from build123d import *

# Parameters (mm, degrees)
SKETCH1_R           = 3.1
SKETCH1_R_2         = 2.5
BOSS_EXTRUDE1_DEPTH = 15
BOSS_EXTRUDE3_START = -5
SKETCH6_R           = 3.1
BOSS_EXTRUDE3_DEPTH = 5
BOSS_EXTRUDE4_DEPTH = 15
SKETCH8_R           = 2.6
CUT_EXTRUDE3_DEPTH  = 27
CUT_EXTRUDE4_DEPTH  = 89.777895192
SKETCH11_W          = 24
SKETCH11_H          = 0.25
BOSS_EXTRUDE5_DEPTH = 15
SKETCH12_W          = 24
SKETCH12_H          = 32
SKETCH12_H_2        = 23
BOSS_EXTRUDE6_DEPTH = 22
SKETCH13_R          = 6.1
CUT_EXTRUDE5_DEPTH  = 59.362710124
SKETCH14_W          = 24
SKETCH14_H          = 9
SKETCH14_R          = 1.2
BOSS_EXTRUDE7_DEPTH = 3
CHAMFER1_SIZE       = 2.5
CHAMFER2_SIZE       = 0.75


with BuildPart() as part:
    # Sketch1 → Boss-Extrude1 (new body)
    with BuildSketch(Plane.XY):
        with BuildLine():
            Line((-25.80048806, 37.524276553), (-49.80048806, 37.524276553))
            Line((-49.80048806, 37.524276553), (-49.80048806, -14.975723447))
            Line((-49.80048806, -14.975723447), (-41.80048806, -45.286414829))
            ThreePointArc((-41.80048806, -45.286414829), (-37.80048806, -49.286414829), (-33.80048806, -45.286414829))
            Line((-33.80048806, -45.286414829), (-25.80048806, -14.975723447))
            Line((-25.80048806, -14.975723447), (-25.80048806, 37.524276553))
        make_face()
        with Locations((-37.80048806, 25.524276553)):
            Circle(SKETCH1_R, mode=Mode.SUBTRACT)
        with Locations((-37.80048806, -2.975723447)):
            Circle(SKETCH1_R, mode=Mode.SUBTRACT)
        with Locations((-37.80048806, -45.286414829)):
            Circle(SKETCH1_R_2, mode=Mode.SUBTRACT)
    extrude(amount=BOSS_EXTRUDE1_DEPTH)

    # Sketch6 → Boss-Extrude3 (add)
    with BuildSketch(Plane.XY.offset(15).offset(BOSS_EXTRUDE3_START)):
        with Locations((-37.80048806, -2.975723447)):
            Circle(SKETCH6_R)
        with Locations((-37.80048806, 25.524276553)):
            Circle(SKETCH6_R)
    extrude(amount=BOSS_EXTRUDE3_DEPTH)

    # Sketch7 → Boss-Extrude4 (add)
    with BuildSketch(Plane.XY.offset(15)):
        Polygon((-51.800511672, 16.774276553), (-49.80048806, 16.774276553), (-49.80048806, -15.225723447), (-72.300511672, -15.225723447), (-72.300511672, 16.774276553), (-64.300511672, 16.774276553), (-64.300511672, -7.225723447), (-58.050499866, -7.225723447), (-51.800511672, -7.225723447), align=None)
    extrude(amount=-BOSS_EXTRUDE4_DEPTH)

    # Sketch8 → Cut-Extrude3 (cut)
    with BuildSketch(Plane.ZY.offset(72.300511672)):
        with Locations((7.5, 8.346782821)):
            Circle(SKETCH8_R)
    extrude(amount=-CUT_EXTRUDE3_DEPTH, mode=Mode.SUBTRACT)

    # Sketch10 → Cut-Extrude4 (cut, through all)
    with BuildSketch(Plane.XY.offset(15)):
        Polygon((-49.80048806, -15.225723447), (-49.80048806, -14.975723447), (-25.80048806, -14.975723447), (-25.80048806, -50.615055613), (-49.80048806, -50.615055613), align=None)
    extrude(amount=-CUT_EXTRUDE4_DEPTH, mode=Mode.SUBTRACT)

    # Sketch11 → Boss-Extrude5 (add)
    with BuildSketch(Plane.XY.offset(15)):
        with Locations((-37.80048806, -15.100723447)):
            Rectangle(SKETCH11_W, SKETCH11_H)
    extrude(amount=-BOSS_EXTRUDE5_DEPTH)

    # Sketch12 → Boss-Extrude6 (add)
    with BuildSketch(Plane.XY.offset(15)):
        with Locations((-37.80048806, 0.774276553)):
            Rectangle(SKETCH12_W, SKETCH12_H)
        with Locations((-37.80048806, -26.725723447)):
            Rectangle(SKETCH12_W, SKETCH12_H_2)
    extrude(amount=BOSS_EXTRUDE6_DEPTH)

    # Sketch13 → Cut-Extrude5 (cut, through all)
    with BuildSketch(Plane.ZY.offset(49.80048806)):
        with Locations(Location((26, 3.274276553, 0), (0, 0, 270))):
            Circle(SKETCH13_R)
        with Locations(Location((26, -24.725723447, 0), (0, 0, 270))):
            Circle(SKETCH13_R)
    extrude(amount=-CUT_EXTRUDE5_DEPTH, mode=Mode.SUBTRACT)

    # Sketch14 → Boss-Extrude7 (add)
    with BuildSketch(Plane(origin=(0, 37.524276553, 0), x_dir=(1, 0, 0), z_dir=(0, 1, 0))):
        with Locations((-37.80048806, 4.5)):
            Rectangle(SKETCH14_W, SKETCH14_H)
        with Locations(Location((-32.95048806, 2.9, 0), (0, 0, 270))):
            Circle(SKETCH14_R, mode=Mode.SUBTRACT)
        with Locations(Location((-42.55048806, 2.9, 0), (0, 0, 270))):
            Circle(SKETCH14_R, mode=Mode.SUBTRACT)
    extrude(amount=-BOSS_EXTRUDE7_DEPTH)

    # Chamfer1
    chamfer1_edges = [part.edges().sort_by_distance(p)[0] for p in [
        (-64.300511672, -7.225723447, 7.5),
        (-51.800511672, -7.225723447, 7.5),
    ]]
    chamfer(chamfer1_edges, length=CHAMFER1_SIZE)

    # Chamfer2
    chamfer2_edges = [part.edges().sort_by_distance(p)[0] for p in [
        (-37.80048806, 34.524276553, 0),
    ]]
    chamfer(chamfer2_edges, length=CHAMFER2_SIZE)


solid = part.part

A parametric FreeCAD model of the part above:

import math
import FreeCAD as App
import Part
import Sketcher
Q = App.Units.Quantity


def edges_at(feature, points):
    """Names of the edges that pass closest to the given points."""
    edges = feature.Shape.Edges
    near = lambda p: min(range(len(edges)), key=lambda i: edges[i].distToShape(Part.Vertex(*p))[0])
    return sorted({f"Edge{near(p) + 1}" for p in points})

doc = App.newDocument("Part")
body = doc.addObject("PartDesign::Body", "Body")

sketch1 = body.newObject("Sketcher::SketchObject", "Sketch")
sketch1.AttachmentSupport = (doc.getObject("XY_Plane"), [""])
sketch1.MapMode = "FlatFace"
sketch1.addGeometry([
    Part.LineSegment(App.Vector(-25.800488, 37.524277, 0), App.Vector(-49.800488, 37.524277, 0)),
    Part.LineSegment(App.Vector(-49.800488, 37.524277, 0), App.Vector(-49.800488, -14.975723, 0)),
    Part.LineSegment(App.Vector(-49.800488, -14.975723, 0), App.Vector(-41.800488, -45.286415, 0)),
    Part.ArcOfCircle(Part.Circle(App.Vector(-37.800488, -45.286415, 0), App.Vector(0, 0, 1), 4), math.radians(180), math.radians(360)),
    Part.LineSegment(App.Vector(-33.800488, -45.286415, 0), App.Vector(-25.800488, -14.975723, 0)),
    Part.LineSegment(App.Vector(-25.800488, -14.975723, 0), App.Vector(-25.800488, 37.524277, 0)),
    Part.Circle(App.Vector(-37.800488, -45.286415, 0), App.Vector(0, 0, 1), 2.5),
    Part.Circle(App.Vector(-37.800488, -2.975723, 0), App.Vector(0, 0, 1), 3.1),
    Part.Circle(App.Vector(-37.800488, 25.524277, 0), App.Vector(0, 0, 1), 3.1),
], False)
sketch1.addConstraint([
    Sketcher.Constraint("Coincident", 0, 2, 1, 1),
    Sketcher.Constraint("Coincident", 1, 2, 2, 1),
    Sketcher.Constraint("Coincident", 2, 2, 3, 1),
    Sketcher.Constraint("Coincident", 3, 2, 4, 1),
    Sketcher.Constraint("Coincident", 4, 2, 5, 1),
    Sketcher.Constraint("Coincident", 5, 2, 0, 1),
    Sketcher.Constraint("Horizontal", 0),
    Sketcher.Constraint("Vertical", 1),
    Sketcher.Constraint("Vertical", 5),
    Sketcher.Constraint("Coincident", 6, 3, 3, 3),
    Sketcher.Constraint("Equal", 7, 8),
    Sketcher.Constraint("Horizontal", 6, 3, 2, 2),
    Sketcher.Constraint("Horizontal", 2, 2, 3, 2),
    Sketcher.Constraint("Horizontal", 1, 2, 4, 2),
    Sketcher.Constraint("Vertical", 6, 3, 7, 3),
    Sketcher.Constraint("Vertical", 7, 3, 8, 3),
    Sketcher.Constraint("Equal", 2, 4),
    Sketcher.Constraint("Diameter", 6, Q("5 mm")),
    Sketcher.Constraint("Radius", 3, Q("4 mm")),
    Sketcher.Constraint("Diameter", 7, Q("6.2 mm")),
    Sketcher.Constraint("DistanceX", 0, 2, 0, 1, Q("24 mm")),
    Sketcher.Constraint("DistanceY", 1, 2, 1, 1, Q("52.5 mm")),
    Sketcher.Constraint("DistanceY", 8, 3, 0, 2, Q("12 mm")),
    Sketcher.Constraint("DistanceY", 1, 2, 7, 3, Q("12 mm")),
    Sketcher.Constraint("DistanceX", 3, 3, -1, 1, Q("37.800488 mm")),
    Sketcher.Constraint("DistanceY", 3, 3, 7, 3, Q("42.310691 mm")),
    Sketcher.Constraint("DistanceY", 3, 3, -1, 1, Q("45.286415 mm")),
])
pad1 = body.newObject("PartDesign::Pad", "Pad")
pad1.Profile = sketch1
pad1.Length = 15

sketch2 = body.newObject("Sketcher::SketchObject", "Sketch001")
sketch2.AttachmentSupport = (doc.getObject("XY_Plane"), [""])
sketch2.MapMode = "FlatFace"
sketch2.AttachmentOffset = App.Placement(App.Vector(0, 0, 10), App.Rotation())
sketch2.addGeometry([
    Part.Circle(App.Vector(-37.800488, -2.975723, 0), App.Vector(0, 0, 1), 3.1),
    Part.Circle(App.Vector(-37.800488, 25.524277, 0), App.Vector(0, 0, 1), 3.1),
], False)
sketch2.addConstraint([
    Sketcher.Constraint("Equal", 0, 1),
    Sketcher.Constraint("Vertical", 0, 3, 1, 3),
    Sketcher.Constraint("Diameter", 0, Q("6.2 mm")),
    Sketcher.Constraint("DistanceY", 0, 3, 1, 3, Q("28.5 mm")),
    Sketcher.Constraint("DistanceX", 0, 3, -1, 1, Q("37.800488 mm")),
    Sketcher.Constraint("DistanceY", 0, 3, -1, 1, Q("2.975723 mm")),
])
pad2 = body.newObject("PartDesign::Pad", "Pad001")
pad2.Profile = sketch2
pad2.Length = 5

sketch3 = body.newObject("Sketcher::SketchObject", "Sketch002")
sketch3.AttachmentSupport = (doc.getObject("XY_Plane"), [""])
sketch3.MapMode = "FlatFace"
sketch3.AttachmentOffset = App.Placement(App.Vector(0, 0, 15), App.Rotation())
sketch3.addGeometry([
    Part.LineSegment(App.Vector(-49.800488, 16.774277, 0), App.Vector(-51.800512, 16.774277, 0)),
    Part.LineSegment(App.Vector(-51.800512, 16.774277, 0), App.Vector(-51.800512, -7.225723, 0)),
    Part.LineSegment(App.Vector(-51.800512, -7.225723, 0), App.Vector(-64.300512, -7.225723, 0)),
    Part.LineSegment(App.Vector(-64.300512, -7.225723, 0), App.Vector(-64.300512, 16.774277, 0)),
    Part.LineSegment(App.Vector(-64.300512, 16.774277, 0), App.Vector(-72.300512, 16.774277, 0)),
    Part.LineSegment(App.Vector(-72.300512, 16.774277, 0), App.Vector(-72.300512, -15.225723, 0)),
    Part.LineSegment(App.Vector(-72.300512, -15.225723, 0), App.Vector(-49.800488, -15.225723, 0)),
    Part.LineSegment(App.Vector(-49.800488, -15.225723, 0), App.Vector(-49.800488, 16.774277, 0)),
], False)
sketch3.addConstraint([
    Sketcher.Constraint("Coincident", 0, 2, 1, 1),
    Sketcher.Constraint("Coincident", 1, 2, 2, 1),
    Sketcher.Constraint("Coincident", 2, 2, 3, 1),
    Sketcher.Constraint("Coincident", 3, 2, 4, 1),
    Sketcher.Constraint("Coincident", 4, 2, 5, 1),
    Sketcher.Constraint("Coincident", 5, 2, 6, 1),
    Sketcher.Constraint("Coincident", 6, 2, 7, 1),
    Sketcher.Constraint("Coincident", 7, 2, 0, 1),
    Sketcher.Constraint("Horizontal", 0),
    Sketcher.Constraint("Vertical", 1),
    Sketcher.Constraint("Horizontal", 2),
    Sketcher.Constraint("Vertical", 3),
    Sketcher.Constraint("Horizontal", 4),
    Sketcher.Constraint("Vertical", 5),
    Sketcher.Constraint("Horizontal", 6),
    Sketcher.Constraint("Vertical", 7),
    Sketcher.Constraint("Horizontal", 0, 2, 3, 2),
    Sketcher.Constraint("DistanceX", 4, 2, 4, 1, Q("8 mm")),
    Sketcher.Constraint("DistanceY", 1, 2, 1, 1, Q("24 mm")),
    Sketcher.Constraint("DistanceY", 5, 2, 5, 1, Q("32 mm")),
    Sketcher.Constraint("DistanceX", 2, 2, 2, 1, Q("12.5 mm")),
    Sketcher.Constraint("DistanceX", 0, 2, 0, 1, Q("2.000024 mm")),
    Sketcher.Constraint("DistanceX", 0, 2, -1, 1, Q("51.800512 mm")),
    Sketcher.Constraint("DistanceY", -1, 1, 0, 2, Q("16.774277 mm")),
])
pad3 = body.newObject("PartDesign::Pad", "Pad002")
pad3.Profile = sketch3
pad3.Length = 15
pad3.Reversed = True

sketch4 = body.newObject("Sketcher::SketchObject", "Sketch003")
sketch4.AttachmentSupport = (doc.getObject("YZ_Plane"), [""])
sketch4.MapMode = "FlatFace"
sketch4.AttachmentOffset = App.Placement(App.Vector(0, 0, -72.300512), App.Rotation())
sketch4.addGeometry(Part.Circle(App.Vector(8.346783, 7.5, 0), App.Vector(0, 0, 1), 2.6), False)
sketch4.addConstraint([
    Sketcher.Constraint("Diameter", 0, Q("5.2 mm")),
    Sketcher.Constraint("DistanceY", -1, 1, 0, 3, Q("7.5 mm")),
    Sketcher.Constraint("DistanceX", -1, 1, 0, 3, Q("8.346783 mm")),
])
pocket1 = body.newObject("PartDesign::Pocket", "Pocket")
pocket1.Profile = sketch4
pocket1.Length = 27
pocket1.Reversed = True

sketch5 = body.newObject("Sketcher::SketchObject", "Sketch004")
sketch5.AttachmentSupport = (doc.getObject("XY_Plane"), [""])
sketch5.MapMode = "FlatFace"
sketch5.AttachmentOffset = App.Placement(App.Vector(0, 0, 15), App.Rotation())
sketch5.addGeometry([
    Part.LineSegment(App.Vector(-49.800488, -14.975723, 0), App.Vector(-49.800488, -50.615056, 0)),
    Part.LineSegment(App.Vector(-49.800488, -50.615056, 0), App.Vector(-25.800488, -50.615056, 0)),
    Part.LineSegment(App.Vector(-25.800488, -50.615056, 0), App.Vector(-25.800488, -14.975723, 0)),
    Part.LineSegment(App.Vector(-25.800488, -14.975723, 0), App.Vector(-49.800488, -14.975723, 0)),
], False)
sketch5.addConstraint([
    Sketcher.Constraint("Coincident", 0, 2, 1, 1),
    Sketcher.Constraint("Coincident", 1, 2, 2, 1),
    Sketcher.Constraint("Coincident", 2, 2, 3, 1),
    Sketcher.Constraint("Coincident", 3, 2, 0, 1),
    Sketcher.Constraint("Vertical", 0),
    Sketcher.Constraint("Horizontal", 1),
    Sketcher.Constraint("Vertical", 2),
    Sketcher.Constraint("Horizontal", 3),
    Sketcher.Constraint("DistanceX", 1, 1, 1, 2, Q("24 mm")),
    Sketcher.Constraint("DistanceY", 0, 2, 0, 1, Q("35.639332 mm")),
    Sketcher.Constraint("DistanceX", 0, 2, -1, 1, Q("49.800488 mm")),
    Sketcher.Constraint("DistanceY", 0, 2, -1, 1, Q("50.615056 mm")),
])
pocket2 = body.newObject("PartDesign::Pocket", "Pocket001")
pocket2.Profile = sketch5
pocket2.Type = "ThroughAll"

sketch6 = body.newObject("Sketcher::SketchObject", "Sketch005")
sketch6.AttachmentSupport = (doc.getObject("XY_Plane"), [""])
sketch6.MapMode = "FlatFace"
sketch6.AttachmentOffset = App.Placement(App.Vector(0, 0, 15), App.Rotation())
sketch6.addGeometry([
    Part.LineSegment(App.Vector(-49.800488, -14.975723, 0), App.Vector(-49.800488, -15.225723, 0)),
    Part.LineSegment(App.Vector(-49.800488, -15.225723, 0), App.Vector(-25.800488, -15.225723, 0)),
    Part.LineSegment(App.Vector(-25.800488, -15.225723, 0), App.Vector(-25.800488, -14.975723, 0)),
    Part.LineSegment(App.Vector(-25.800488, -14.975723, 0), App.Vector(-49.800488, -14.975723, 0)),
], False)
sketch6.addConstraint([
    Sketcher.Constraint("Coincident", 0, 2, 1, 1),
    Sketcher.Constraint("Coincident", 1, 2, 2, 1),
    Sketcher.Constraint("Coincident", 2, 2, 3, 1),
    Sketcher.Constraint("Coincident", 3, 2, 0, 1),
    Sketcher.Constraint("Vertical", 0),
    Sketcher.Constraint("Horizontal", 1),
    Sketcher.Constraint("Vertical", 2),
    Sketcher.Constraint("Horizontal", 3),
    Sketcher.Constraint("DistanceX", 1, 1, 1, 2, Q("24 mm")),
    Sketcher.Constraint("DistanceY", 0, 2, 0, 1, Q("0.25 mm")),
    Sketcher.Constraint("DistanceX", 0, 2, -1, 1, Q("49.800488 mm")),
    Sketcher.Constraint("DistanceY", 0, 2, -1, 1, Q("15.225723 mm")),
])
pad4 = body.newObject("PartDesign::Pad", "Pad003")
pad4.Profile = sketch6
pad4.Length = 15
pad4.Reversed = True

sketch7 = body.newObject("Sketcher::SketchObject", "Sketch006")
sketch7.AttachmentSupport = (doc.getObject("XY_Plane"), [""])
sketch7.MapMode = "FlatFace"
sketch7.AttachmentOffset = App.Placement(App.Vector(0, 0, 15), App.Rotation())
sketch7.addGeometry([
    Part.LineSegment(App.Vector(-49.800488, 16.774277, 0), App.Vector(-49.800488, -38.225723, 0)),
    Part.LineSegment(App.Vector(-49.800488, -38.225723, 0), App.Vector(-25.800488, -38.225723, 0)),
    Part.LineSegment(App.Vector(-25.800488, -38.225723, 0), App.Vector(-25.800488, 16.774277, 0)),
    Part.LineSegment(App.Vector(-25.800488, 16.774277, 0), App.Vector(-49.800488, 16.774277, 0)),
], False)
sketch7.addConstraint([
    Sketcher.Constraint("Coincident", 0, 2, 1, 1),
    Sketcher.Constraint("Coincident", 1, 2, 2, 1),
    Sketcher.Constraint("Coincident", 2, 2, 3, 1),
    Sketcher.Constraint("Coincident", 3, 2, 0, 1),
    Sketcher.Constraint("Vertical", 0),
    Sketcher.Constraint("Horizontal", 1),
    Sketcher.Constraint("Vertical", 2),
    Sketcher.Constraint("Horizontal", 3),
    Sketcher.Constraint("DistanceX", 1, 1, 1, 2, Q("24 mm")),
    Sketcher.Constraint("DistanceY", 0, 2, 0, 1, Q("55 mm")),
    Sketcher.Constraint("DistanceX", 0, 2, -1, 1, Q("49.800488 mm")),
    Sketcher.Constraint("DistanceY", 0, 2, -1, 1, Q("38.225723 mm")),
])
pad5 = body.newObject("PartDesign::Pad", "Pad004")
pad5.Profile = sketch7
pad5.Length = 22

sketch8 = body.newObject("Sketcher::SketchObject", "Sketch007")
sketch8.AttachmentSupport = (doc.getObject("YZ_Plane"), [""])
sketch8.MapMode = "FlatFace"
sketch8.AttachmentOffset = App.Placement(App.Vector(0, 0, -49.800488), App.Rotation())
sketch8.addGeometry([
    Part.Circle(App.Vector(3.274277, 26, 0), App.Vector(0, 0, 1), 6.1),
    Part.Circle(App.Vector(-24.725723, 26, 0), App.Vector(0, 0, 1), 6.1),
], False)
sketch8.addConstraint([
    Sketcher.Constraint("Equal", 0, 1),
    Sketcher.Constraint("Horizontal", 0, 3, 1, 3),
    Sketcher.Constraint("Diameter", 0, Q("12.2 mm")),
    Sketcher.Constraint("DistanceY", -1, 1, 0, 3, Q("26 mm")),
    Sketcher.Constraint("DistanceX", 1, 3, 0, 3, Q("28 mm")),
    Sketcher.Constraint("DistanceX", -1, 1, 0, 3, Q("3.274277 mm")),
])
pocket3 = body.newObject("PartDesign::Pocket", "Pocket002")
pocket3.Profile = sketch8
pocket3.Type = "ThroughAll"
pocket3.Reversed = True

sketch9 = body.newObject("Sketcher::SketchObject", "Sketch008")
sketch9.AttachmentSupport = (doc.getObject("XZ_Plane"), [""])
sketch9.MapMode = "FlatFace"
sketch9.AttachmentOffset = App.Placement(App.Vector(0, 0, -37.524277), App.Rotation())
sketch9.addGeometry([
    Part.LineSegment(App.Vector(-49.800488, -9, 0), App.Vector(-49.800488, 0, 0)),
    Part.LineSegment(App.Vector(-49.800488, 0, 0), App.Vector(-25.800488, 0, 0)),
    Part.LineSegment(App.Vector(-25.800488, 0, 0), App.Vector(-25.800488, -9, 0)),
    Part.LineSegment(App.Vector(-25.800488, -9, 0), App.Vector(-49.800488, -9, 0)),
    Part.Circle(App.Vector(-42.550488, -2.9, 0), App.Vector(0, 0, 1), 1.2),
    Part.Circle(App.Vector(-32.950488, -2.9, 0), App.Vector(0, 0, 1), 1.2),
], False)
sketch9.addConstraint([
    Sketcher.Constraint("Coincident", 0, 2, 1, 1),
    Sketcher.Constraint("Coincident", 1, 2, 2, 1),
    Sketcher.Constraint("Coincident", 2, 2, 3, 1),
    Sketcher.Constraint("Coincident", 3, 2, 0, 1),
    Sketcher.Constraint("Vertical", 0),
    Sketcher.Constraint("Horizontal", 1),
    Sketcher.Constraint("Vertical", 2),
    Sketcher.Constraint("Horizontal", 3),
    Sketcher.Constraint("Equal", 4, 5),
    Sketcher.Constraint("PointOnObject", 0, 2, -1),
    Sketcher.Constraint("Horizontal", 4, 3, 5, 3),
    Sketcher.Constraint("Diameter", 4, Q("2.4 mm")),
    Sketcher.Constraint("DistanceX", 1, 1, 1, 2, Q("24 mm")),
    Sketcher.Constraint("DistanceY", 0, 1, 0, 2, Q("9 mm")),
    Sketcher.Constraint("DistanceY", 4, 3, -1, 1, Q("2.9 mm")),
    Sketcher.Constraint("DistanceX", 4, 3, 5, 3, Q("9.6 mm")),
    Sketcher.Constraint("DistanceX", 0, 2, 4, 3, Q("7.25 mm")),
    Sketcher.Constraint("DistanceX", 4, 3, -1, 1, Q("42.550488 mm")),
])
pad6 = body.newObject("PartDesign::Pad", "Pad005")
pad6.Profile = sketch9
pad6.Length = 3
doc.recompute()

chamfer = body.newObject("PartDesign::Chamfer", "Chamfer")
chamfer.Base = (pad6, edges_at(pad6, [(-64.301, -7.226, 7.5), (-51.801, -7.226, 7.5)]))
chamfer.Size = 2.5
doc.recompute()

chamfer2 = body.newObject("PartDesign::Chamfer", "Chamfer001")
chamfer2.Base = (chamfer, edges_at(chamfer, [(-37.8, 34.524, 0)]))
chamfer2.Size = 0.75

doc.recompute()
